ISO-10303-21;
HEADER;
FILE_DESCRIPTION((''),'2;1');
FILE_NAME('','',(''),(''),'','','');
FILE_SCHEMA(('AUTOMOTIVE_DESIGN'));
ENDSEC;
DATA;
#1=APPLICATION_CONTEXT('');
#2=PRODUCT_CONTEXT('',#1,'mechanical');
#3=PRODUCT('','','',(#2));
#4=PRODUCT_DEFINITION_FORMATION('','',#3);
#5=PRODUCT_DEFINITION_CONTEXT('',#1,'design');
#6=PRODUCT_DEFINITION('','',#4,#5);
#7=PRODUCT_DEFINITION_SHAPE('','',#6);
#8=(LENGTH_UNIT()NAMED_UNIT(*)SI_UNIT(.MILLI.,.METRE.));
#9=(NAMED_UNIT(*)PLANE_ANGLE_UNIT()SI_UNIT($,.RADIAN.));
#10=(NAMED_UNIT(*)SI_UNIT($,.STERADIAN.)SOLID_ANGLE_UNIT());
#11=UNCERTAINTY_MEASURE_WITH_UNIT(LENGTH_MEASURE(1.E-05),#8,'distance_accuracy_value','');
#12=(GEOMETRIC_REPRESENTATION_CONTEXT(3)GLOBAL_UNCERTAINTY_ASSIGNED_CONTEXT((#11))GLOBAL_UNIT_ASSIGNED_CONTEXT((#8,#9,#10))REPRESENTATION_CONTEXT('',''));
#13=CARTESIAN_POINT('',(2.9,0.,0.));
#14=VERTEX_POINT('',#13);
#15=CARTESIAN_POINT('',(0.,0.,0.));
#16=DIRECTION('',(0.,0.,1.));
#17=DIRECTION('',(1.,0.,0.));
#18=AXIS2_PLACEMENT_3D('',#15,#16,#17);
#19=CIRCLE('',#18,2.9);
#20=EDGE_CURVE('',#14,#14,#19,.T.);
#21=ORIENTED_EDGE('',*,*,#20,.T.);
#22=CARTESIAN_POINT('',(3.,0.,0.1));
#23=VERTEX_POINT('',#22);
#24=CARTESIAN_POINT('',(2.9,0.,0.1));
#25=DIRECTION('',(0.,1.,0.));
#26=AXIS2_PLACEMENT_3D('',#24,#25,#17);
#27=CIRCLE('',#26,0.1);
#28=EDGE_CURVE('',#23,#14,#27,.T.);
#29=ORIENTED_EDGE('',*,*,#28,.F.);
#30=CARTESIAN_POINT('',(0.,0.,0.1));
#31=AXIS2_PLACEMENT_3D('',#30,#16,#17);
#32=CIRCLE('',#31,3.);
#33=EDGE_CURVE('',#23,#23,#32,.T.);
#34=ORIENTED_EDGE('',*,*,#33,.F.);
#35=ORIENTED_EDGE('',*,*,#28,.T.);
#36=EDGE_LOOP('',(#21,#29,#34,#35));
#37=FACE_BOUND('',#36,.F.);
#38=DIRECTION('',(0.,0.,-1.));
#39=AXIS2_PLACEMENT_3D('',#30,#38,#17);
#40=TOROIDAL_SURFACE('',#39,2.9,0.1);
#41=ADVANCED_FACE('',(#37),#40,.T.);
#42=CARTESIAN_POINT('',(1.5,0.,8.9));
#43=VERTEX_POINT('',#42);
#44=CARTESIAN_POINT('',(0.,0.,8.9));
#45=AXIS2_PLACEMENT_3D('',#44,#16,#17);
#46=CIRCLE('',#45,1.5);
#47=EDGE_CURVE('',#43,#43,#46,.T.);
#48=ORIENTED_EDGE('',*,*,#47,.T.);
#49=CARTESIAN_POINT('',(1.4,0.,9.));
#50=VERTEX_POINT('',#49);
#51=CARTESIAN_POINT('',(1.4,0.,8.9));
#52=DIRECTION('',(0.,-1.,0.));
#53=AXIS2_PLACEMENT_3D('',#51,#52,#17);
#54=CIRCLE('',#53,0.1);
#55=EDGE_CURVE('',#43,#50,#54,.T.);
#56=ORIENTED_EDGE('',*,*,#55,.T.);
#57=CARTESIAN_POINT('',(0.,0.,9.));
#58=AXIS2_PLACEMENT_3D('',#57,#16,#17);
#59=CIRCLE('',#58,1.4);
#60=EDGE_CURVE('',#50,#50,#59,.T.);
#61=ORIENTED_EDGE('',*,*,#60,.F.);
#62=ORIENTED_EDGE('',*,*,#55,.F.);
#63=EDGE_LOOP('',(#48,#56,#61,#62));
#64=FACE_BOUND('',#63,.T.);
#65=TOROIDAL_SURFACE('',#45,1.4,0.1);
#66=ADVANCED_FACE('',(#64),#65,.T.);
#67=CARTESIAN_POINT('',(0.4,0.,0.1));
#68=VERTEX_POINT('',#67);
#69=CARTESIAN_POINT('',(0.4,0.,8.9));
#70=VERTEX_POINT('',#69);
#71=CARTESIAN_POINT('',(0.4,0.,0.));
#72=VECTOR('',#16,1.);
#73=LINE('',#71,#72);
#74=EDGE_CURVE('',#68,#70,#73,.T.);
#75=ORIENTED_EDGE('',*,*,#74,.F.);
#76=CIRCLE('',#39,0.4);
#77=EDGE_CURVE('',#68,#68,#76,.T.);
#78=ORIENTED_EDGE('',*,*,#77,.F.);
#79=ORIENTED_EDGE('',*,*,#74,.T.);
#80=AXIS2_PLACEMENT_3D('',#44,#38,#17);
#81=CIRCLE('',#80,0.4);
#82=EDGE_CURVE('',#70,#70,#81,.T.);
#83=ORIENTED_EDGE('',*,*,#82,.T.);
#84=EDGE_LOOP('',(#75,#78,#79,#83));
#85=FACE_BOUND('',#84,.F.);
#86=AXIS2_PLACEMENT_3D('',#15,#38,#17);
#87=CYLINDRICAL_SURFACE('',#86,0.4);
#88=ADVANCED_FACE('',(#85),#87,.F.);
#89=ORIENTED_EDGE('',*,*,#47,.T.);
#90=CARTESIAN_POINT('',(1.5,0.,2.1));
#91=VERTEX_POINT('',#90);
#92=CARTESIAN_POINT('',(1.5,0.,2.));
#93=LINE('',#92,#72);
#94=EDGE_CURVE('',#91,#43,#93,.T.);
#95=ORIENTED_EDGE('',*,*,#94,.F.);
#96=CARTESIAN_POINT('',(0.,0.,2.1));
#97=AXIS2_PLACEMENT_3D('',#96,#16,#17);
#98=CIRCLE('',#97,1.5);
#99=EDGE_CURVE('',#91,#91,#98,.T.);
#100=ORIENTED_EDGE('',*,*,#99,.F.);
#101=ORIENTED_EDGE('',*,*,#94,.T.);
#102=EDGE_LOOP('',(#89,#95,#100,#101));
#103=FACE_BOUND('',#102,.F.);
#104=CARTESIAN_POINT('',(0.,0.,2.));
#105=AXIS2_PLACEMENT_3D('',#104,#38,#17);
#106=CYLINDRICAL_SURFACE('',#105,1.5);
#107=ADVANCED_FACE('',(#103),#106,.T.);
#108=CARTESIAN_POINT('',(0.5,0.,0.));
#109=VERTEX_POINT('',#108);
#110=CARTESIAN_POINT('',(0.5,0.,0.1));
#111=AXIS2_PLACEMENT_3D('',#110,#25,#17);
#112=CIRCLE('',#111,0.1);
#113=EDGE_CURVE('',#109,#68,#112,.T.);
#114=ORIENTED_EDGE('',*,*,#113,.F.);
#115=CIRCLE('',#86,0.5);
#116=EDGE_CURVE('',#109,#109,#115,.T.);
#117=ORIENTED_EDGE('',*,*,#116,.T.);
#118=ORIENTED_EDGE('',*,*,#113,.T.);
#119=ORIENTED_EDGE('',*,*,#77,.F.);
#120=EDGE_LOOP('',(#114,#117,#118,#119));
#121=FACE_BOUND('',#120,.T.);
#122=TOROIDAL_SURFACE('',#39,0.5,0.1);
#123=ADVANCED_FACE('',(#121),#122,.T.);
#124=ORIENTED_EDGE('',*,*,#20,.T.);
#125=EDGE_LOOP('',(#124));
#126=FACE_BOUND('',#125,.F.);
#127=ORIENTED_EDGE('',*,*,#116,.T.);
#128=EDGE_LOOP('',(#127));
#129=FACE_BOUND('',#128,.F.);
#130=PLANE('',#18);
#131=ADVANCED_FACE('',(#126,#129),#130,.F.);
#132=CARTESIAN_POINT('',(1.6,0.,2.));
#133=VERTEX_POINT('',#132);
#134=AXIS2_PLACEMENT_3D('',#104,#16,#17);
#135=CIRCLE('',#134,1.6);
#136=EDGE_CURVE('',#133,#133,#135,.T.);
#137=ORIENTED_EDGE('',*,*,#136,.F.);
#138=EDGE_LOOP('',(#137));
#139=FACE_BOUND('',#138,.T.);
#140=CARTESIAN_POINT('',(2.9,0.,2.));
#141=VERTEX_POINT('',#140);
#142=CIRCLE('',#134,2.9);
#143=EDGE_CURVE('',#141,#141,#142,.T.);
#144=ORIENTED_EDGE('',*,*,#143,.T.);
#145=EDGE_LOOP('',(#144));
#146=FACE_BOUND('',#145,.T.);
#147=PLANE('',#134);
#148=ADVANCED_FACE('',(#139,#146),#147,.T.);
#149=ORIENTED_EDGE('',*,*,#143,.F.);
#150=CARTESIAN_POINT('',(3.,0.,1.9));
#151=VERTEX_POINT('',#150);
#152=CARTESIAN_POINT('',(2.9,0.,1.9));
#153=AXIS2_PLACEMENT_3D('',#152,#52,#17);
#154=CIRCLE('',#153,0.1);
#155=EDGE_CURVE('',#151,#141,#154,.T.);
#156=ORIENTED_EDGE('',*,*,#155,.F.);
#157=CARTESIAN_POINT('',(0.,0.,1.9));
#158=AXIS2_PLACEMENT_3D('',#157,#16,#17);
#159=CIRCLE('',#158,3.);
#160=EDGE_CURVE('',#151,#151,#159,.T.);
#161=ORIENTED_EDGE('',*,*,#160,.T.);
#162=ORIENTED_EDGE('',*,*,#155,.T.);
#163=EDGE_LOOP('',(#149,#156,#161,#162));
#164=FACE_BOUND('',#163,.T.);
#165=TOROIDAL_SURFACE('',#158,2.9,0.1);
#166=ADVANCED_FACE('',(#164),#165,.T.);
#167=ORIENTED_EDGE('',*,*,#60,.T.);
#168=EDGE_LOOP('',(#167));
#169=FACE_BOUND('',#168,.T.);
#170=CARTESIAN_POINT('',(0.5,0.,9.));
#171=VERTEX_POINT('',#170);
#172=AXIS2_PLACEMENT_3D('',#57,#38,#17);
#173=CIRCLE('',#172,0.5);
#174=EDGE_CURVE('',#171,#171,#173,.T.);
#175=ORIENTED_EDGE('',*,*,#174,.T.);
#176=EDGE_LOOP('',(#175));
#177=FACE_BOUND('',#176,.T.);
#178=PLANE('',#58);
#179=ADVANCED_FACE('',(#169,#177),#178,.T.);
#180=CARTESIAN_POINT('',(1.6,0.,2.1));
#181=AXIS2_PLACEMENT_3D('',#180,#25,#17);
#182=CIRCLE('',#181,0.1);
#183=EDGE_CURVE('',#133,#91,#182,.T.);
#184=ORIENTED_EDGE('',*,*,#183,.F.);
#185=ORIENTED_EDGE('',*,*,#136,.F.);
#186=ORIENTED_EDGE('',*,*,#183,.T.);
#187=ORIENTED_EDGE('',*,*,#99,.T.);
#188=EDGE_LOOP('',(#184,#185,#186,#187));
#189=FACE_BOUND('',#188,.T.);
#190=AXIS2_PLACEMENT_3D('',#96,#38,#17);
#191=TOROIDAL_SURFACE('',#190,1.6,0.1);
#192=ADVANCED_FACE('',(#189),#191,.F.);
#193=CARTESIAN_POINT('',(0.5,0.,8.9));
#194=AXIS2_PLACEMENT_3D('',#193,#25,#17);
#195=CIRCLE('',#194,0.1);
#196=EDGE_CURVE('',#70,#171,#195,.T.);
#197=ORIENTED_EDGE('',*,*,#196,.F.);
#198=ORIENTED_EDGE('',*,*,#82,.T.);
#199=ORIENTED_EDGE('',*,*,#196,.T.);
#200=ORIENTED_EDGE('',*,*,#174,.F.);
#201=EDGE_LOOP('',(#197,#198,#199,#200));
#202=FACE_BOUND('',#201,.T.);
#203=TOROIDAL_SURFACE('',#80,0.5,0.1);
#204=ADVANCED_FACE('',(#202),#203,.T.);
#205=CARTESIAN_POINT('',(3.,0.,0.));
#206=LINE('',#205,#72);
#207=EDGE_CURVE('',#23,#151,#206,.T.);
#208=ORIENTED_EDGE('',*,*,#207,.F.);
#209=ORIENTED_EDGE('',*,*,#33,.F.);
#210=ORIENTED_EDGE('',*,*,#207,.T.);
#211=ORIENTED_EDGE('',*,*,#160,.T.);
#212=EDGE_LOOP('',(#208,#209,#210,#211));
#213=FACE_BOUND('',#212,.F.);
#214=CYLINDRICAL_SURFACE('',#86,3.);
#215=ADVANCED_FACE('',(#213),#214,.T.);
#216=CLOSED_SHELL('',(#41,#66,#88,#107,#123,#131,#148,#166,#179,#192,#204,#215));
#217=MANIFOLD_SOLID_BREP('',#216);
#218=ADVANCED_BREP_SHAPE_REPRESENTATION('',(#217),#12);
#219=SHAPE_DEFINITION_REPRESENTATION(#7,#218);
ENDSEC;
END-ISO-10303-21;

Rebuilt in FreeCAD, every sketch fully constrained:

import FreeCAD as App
import Part
import Sketcher

V = App.Vector


def edges_at(feature, points):
    """Names of the edges that pass closest to the given points."""
    edges = feature.Shape.Edges
    near = lambda p: min(range(len(edges)), key=lambda i: edges[i].distToShape(Part.Vertex(*p))[0])
    return sorted({f"Edge{near(p) + 1}" for p in points})

doc = App.newDocument("Part")
body = doc.addObject("PartDesign::Body", "Body")

# Sketch on XY plane
sketch1 = body.newObject("Sketcher::SketchObject", "Sketch")
sketch1.AttachmentSupport = (doc.getObject("XY_Plane"), [""])
sketch1.MapMode = "FlatFace"
sketch1.addGeometry(Part.Circle(V(0, 0, 0), V(0, 0, 1), 3), False)
sketch1.addConstraint(Sketcher.Constraint("Coincident", 0, 3, -1, 1))
sketch1.addConstraint(Sketcher.Constraint("Diameter", 0, 6.0))
pad1 = body.newObject("PartDesign::Pad", "Pad")
pad1.Profile = sketch1
pad1.Length = 2

# Sketch on XY plane
sketch2 = body.newObject("Sketcher::SketchObject", "Sketch001")
sketch2.AttachmentSupport = (doc.getObject("XY_Plane"), [""])
sketch2.MapMode = "FlatFace"
sketch2.AttachmentOffset = App.Placement(V(0, 0, 2), App.Rotation())
sketch2.addGeometry(Part.Circle(V(0, 0, 0), V(0, 0, 1), 1.5), False)
sketch2.addConstraint(Sketcher.Constraint("Coincident", 0, 3, -1, 1))
sketch2.addConstraint(Sketcher.Constraint("Diameter", 0, 3.0))
pad2 = body.newObject("PartDesign::Pad", "Pad001")
pad2.Profile = sketch2
pad2.Length = 7

# Sketch on XY plane
sketch3 = body.newObject("Sketcher::SketchObject", "Sketch002")
sketch3.AttachmentSupport = (doc.getObject("XY_Plane"), [""])
sketch3.MapMode = "FlatFace"
sketch3.addGeometry(Part.Circle(V(0, 0, 0), V(0, 0, 1), 0.4), False)
sketch3.addConstraint(Sketcher.Constraint("Coincident", 0, 3, -1, 1))
sketch3.addConstraint(Sketcher.Constraint("Diameter", 0, 0.8))
pocket1 = body.newObject("PartDesign::Pocket", "Pocket")
pocket1.Profile = sketch3
pocket1.Type = "ThroughAll"
pocket1.Reversed = True
doc.recompute()

fillet = body.newObject("PartDesign::Fillet", "Fillet")
fillet.Base = (pocket1, edges_at(pocket1, [
    (-0.4, 0, 9),
    (-0.4, 0, 0),
    (-3, 0, 0),
    (-3, 0, 2),
    (-1.5, 0, 2),
    (-1.5, 0, 9),
]))
fillet.Radius = 0.1

doc.recompute()
